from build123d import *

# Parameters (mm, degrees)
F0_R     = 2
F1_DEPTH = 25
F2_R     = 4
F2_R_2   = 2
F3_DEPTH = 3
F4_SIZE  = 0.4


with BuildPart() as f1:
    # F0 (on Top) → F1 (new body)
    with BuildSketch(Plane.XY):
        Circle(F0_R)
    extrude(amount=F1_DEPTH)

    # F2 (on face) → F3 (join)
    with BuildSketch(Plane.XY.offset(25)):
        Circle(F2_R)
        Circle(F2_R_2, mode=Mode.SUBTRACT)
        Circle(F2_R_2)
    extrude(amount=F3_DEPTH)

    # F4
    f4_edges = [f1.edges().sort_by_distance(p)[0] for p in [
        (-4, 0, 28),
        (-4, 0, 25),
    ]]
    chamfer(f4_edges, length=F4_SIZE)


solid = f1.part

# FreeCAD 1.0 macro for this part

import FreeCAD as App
import Part
import Sketcher


def edges_at(feature, points):
    """Names of the edges that pass closest to the given points."""
    edges = feature.Shape.Edges
    near = lambda p: min(range(len(edges)), key=lambda i: edges[i].distToShape(Part.Vertex(*p))[0])
    return sorted({f"Edge{near(p) + 1}" for p in points})

doc = App.newDocument("Part")
body = doc.addObject("PartDesign::Body", "Body")

sketch1 = body.newObject("Sketcher::SketchObject", "Sketch")
sketch1.AttachmentSupport = (doc.getObject("XY_Plane"), [""])
sketch1.MapMode = "FlatFace"
sketch1.addGeometry(Part.Circle(App.Vector(0, 0, 0), App.Vector(0, 0, 1), 2), False)
sketch1.addConstraint([
    Sketcher.Constraint("Coincident", 0, 3, -1, 1),
    Sketcher.Constraint("Diameter", 0, 4.0),
])
pad1 = body.newObject("PartDesign::Pad", "Pad")
pad1.Profile = sketch1
pad1.Length = 25

sketch2 = body.newObject("Sketcher::SketchObject", "Sketch001")
sketch2.AttachmentSupport = (doc.getObject("XY_Plane"), [""])
sketch2.MapMode = "FlatFace"
sketch2.AttachmentOffset = App.Placement(App.Vector(0, 0, 25), App.Rotation())
sketch2.addGeometry(Part.Circle(App.Vector(0, 0, 0), App.Vector(0, 0, 1), 4), False)
sketch2.addConstraint([
    Sketcher.Constraint("Coincident", 0, 3, -1, 1),
    Sketcher.Constraint("Diameter", 0, 8.0),
])
pad2 = body.newObject("PartDesign::Pad", "Pad001")
pad2.Profile = sketch2
pad2.Length = 3
doc.recompute()

chamfer = body.newObject("PartDesign::Chamfer", "Chamfer")
chamfer.Base = (pad2, edges_at(pad2, [(-4, 0, 28), (-4, 0, 25)]))
chamfer.Size = 0.4

doc.recompute()
